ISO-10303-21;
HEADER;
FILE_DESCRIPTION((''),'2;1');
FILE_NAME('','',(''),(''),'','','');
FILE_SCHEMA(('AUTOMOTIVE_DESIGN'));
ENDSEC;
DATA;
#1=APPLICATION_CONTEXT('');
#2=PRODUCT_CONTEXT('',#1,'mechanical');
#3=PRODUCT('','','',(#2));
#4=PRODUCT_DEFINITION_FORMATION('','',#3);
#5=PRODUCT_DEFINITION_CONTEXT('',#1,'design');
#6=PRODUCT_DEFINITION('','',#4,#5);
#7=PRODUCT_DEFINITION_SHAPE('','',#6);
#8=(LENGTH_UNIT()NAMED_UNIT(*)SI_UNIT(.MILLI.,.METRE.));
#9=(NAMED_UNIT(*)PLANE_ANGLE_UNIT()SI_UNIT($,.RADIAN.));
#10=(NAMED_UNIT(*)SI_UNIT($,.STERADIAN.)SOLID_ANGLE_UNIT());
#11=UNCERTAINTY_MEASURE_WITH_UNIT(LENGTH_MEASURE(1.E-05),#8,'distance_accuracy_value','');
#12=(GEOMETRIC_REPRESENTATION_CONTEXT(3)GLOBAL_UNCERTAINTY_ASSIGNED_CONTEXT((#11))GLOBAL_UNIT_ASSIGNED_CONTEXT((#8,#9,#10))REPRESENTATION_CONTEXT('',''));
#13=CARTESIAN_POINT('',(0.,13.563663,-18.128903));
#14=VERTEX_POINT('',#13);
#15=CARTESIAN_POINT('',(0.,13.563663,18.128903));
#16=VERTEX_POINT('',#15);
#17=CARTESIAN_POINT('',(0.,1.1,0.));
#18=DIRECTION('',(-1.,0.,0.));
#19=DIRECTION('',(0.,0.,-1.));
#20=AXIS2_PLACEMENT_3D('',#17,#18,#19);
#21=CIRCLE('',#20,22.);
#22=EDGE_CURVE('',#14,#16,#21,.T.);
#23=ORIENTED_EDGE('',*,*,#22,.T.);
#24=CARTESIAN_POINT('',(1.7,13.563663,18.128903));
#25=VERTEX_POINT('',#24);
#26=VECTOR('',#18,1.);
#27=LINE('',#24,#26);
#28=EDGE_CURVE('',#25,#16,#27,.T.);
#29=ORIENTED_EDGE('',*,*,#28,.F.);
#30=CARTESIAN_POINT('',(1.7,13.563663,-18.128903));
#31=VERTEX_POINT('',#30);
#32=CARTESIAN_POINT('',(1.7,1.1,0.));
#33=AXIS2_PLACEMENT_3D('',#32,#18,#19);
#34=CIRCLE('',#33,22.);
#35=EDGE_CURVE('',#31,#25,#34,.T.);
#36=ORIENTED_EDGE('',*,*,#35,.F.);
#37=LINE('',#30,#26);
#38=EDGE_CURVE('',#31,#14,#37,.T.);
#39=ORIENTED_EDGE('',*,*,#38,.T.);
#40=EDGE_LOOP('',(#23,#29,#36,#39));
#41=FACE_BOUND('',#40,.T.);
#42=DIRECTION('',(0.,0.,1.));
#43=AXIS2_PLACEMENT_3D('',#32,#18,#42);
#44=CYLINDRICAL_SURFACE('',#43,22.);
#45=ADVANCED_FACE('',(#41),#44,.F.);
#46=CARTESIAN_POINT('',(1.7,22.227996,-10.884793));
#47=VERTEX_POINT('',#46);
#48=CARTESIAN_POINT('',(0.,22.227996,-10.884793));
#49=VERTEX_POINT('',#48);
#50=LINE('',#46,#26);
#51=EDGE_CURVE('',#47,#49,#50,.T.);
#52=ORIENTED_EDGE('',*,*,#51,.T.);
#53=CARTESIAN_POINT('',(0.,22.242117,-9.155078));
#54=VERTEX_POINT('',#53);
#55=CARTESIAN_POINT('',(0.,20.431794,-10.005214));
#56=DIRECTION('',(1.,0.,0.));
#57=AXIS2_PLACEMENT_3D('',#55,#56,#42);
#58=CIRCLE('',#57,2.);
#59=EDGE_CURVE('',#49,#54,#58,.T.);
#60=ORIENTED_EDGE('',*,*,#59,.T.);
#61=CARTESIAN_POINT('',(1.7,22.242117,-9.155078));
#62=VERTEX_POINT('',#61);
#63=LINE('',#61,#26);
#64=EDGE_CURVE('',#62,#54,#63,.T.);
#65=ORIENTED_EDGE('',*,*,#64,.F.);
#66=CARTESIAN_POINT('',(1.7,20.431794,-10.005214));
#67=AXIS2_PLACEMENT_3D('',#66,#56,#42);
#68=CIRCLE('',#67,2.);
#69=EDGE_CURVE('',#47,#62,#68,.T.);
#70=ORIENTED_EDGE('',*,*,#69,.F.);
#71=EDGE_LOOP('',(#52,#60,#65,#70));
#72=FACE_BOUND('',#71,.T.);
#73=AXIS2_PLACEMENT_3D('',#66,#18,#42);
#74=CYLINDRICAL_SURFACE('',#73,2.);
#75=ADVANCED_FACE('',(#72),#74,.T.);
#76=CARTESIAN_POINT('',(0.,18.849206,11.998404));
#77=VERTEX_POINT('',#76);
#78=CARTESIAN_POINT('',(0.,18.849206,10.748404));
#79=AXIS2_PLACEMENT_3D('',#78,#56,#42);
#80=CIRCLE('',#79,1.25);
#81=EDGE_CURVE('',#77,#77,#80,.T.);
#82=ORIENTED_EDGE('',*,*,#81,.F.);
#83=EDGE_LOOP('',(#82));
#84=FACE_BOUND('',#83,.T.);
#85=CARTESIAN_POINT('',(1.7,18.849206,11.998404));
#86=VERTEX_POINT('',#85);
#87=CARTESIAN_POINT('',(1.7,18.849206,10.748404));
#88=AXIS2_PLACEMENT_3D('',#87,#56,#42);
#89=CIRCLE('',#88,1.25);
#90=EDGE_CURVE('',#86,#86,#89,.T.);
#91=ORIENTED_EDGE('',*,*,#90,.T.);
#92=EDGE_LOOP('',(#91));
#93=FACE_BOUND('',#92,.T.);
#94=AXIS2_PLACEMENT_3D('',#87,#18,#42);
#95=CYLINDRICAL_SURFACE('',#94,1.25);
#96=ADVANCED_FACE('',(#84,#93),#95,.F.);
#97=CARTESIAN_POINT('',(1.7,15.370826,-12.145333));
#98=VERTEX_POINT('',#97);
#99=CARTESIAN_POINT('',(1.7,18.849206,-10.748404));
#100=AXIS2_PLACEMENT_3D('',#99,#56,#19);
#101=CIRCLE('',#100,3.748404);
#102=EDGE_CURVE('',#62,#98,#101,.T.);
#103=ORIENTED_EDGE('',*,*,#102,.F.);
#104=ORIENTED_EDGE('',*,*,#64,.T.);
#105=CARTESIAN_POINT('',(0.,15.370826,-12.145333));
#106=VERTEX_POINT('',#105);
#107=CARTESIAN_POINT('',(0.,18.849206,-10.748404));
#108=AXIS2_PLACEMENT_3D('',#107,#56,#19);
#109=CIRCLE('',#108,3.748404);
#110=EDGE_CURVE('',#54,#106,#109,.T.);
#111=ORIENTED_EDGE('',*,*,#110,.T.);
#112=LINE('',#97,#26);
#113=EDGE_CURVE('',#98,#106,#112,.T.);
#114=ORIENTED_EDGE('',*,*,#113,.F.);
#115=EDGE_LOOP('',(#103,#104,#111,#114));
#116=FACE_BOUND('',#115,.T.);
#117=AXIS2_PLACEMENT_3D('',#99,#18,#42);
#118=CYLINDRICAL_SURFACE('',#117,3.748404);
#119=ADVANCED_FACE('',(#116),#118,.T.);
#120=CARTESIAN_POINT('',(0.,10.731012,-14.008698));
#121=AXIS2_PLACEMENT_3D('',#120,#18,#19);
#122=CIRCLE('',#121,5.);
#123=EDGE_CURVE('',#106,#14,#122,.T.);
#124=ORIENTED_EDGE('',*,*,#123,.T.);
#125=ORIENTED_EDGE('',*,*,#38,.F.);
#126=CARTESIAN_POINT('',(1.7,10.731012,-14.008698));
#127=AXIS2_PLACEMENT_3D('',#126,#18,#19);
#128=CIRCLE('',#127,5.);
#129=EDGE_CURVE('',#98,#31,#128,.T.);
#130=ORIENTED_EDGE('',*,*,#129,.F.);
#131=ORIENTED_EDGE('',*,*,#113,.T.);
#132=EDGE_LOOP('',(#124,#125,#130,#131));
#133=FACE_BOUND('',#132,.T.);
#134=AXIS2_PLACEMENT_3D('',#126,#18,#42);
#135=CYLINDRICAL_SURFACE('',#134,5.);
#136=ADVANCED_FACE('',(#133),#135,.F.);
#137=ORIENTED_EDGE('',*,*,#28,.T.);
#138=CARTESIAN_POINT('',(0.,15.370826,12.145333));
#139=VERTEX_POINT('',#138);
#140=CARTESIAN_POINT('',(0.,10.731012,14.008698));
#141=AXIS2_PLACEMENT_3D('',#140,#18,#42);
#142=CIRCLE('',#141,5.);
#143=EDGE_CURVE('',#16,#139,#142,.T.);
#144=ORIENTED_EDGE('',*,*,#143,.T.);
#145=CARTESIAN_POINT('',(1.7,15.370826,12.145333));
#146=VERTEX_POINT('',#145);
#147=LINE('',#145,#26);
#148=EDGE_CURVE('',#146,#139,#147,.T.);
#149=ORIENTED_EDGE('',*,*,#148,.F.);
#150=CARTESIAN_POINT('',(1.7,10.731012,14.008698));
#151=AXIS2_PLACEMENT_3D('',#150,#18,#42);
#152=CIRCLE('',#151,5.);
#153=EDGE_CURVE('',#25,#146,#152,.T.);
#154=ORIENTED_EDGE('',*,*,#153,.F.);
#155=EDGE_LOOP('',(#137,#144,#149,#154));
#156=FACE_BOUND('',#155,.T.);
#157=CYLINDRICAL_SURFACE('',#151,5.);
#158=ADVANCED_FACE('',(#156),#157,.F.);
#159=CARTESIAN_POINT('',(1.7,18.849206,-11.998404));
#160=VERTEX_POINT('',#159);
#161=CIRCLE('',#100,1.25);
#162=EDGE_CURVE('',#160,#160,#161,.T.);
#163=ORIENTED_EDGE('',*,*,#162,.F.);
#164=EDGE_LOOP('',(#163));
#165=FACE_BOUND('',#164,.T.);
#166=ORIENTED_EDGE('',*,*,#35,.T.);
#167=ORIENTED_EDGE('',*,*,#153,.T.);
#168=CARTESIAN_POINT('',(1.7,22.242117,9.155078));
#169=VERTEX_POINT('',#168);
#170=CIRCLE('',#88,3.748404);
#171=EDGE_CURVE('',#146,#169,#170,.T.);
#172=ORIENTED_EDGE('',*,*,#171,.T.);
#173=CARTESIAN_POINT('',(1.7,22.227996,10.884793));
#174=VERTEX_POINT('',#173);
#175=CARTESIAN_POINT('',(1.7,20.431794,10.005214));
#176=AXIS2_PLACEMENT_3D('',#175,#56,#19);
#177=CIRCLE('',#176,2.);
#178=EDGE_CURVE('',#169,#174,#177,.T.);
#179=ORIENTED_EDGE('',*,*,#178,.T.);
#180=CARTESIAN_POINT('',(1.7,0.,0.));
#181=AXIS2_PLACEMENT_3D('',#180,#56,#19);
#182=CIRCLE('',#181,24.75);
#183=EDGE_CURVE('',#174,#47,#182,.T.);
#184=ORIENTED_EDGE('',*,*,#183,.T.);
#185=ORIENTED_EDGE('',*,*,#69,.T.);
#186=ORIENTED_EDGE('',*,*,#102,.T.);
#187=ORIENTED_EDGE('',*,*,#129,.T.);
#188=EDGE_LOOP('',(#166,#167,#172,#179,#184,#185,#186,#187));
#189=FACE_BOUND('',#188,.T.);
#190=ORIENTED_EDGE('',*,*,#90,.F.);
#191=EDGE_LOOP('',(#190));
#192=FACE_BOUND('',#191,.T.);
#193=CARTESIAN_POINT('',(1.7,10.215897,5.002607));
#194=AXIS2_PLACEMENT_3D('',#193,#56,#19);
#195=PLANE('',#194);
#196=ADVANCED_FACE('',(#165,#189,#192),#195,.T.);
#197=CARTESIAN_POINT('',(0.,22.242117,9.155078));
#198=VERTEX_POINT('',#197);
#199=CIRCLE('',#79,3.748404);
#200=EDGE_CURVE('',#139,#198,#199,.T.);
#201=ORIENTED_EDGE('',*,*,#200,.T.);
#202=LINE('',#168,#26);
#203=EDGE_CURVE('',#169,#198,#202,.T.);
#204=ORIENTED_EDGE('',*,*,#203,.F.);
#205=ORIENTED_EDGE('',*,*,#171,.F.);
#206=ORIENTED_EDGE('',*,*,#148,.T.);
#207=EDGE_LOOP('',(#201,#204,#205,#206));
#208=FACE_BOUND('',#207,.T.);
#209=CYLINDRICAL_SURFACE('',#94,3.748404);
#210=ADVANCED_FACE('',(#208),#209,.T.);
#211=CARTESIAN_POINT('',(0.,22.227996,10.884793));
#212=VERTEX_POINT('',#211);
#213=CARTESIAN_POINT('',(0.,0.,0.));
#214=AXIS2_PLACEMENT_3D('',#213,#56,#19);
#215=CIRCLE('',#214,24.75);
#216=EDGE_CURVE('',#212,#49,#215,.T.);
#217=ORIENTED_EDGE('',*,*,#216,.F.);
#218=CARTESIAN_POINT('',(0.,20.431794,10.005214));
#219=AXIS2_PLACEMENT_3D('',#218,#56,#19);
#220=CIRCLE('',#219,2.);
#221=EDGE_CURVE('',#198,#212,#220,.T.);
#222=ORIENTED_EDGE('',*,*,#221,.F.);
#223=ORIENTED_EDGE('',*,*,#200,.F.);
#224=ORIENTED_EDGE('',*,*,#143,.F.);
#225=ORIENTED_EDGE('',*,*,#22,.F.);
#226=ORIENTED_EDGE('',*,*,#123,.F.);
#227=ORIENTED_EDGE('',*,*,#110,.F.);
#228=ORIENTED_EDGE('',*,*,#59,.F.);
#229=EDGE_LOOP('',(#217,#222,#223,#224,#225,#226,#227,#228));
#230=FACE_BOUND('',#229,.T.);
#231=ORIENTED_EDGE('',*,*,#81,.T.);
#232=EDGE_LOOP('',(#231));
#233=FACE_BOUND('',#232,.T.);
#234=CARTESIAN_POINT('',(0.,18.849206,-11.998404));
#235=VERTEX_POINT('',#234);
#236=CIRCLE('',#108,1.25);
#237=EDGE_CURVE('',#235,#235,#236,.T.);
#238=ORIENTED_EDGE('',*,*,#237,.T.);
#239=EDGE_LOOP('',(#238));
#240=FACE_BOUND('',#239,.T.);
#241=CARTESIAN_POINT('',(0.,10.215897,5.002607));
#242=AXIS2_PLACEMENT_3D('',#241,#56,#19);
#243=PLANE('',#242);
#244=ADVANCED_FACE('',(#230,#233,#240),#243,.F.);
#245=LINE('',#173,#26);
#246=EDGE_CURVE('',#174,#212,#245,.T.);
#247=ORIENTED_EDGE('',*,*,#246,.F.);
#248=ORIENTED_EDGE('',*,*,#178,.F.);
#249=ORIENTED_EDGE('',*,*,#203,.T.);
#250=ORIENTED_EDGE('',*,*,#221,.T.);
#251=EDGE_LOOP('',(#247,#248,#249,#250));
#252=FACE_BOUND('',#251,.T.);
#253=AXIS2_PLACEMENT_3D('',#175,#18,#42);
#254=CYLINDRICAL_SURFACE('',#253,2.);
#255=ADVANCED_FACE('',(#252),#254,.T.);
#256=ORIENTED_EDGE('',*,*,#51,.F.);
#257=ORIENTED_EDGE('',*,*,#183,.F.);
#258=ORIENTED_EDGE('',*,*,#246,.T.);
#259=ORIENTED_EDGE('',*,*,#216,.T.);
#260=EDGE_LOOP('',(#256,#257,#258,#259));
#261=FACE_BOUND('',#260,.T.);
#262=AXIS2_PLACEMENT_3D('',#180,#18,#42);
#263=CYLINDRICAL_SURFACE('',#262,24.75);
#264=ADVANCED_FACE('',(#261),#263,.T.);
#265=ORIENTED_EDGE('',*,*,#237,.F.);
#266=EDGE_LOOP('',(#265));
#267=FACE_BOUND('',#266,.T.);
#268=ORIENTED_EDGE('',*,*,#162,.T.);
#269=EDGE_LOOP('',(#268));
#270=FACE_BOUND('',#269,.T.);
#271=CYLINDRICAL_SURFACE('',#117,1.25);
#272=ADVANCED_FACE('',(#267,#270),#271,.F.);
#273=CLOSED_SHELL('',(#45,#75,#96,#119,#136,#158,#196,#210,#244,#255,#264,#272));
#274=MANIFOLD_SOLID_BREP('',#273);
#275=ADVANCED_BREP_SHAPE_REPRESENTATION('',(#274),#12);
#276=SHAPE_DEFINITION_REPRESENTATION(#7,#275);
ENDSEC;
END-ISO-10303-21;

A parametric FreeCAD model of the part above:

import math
import FreeCAD as App
import Part
import Sketcher
from FreeCAD import Vector
Q = App.Units.Quantity

doc = App.newDocument("Part")
body = doc.addObject("PartDesign::Body", "Body")

# Sketch on YZ plane
sketch1 = doc.addObject("Sketcher::SketchObject", "Sketch")
body.addObject(sketch1)
sketch1.AttachmentSupport = (doc.YZ_Plane, [""])
sketch1.MapMode = "FlatFace"
sketch1.addGeometry([
    Part.ArcOfCircle(Part.Circle(Vector(0, 0, 0), Vector(0, 0, 1), 24.8), math.radians(26), math.radians(334)),  # 0
    Part.ArcOfCircle(Part.Circle(Vector(20.4, -10, 0), Vector(0, 0, 1), 2), math.radians(-26), math.radians(25)),  # 1
    Part.ArcOfCircle(Part.Circle(Vector(18.8, -10.7, 0), Vector(0, 0, 1), 3.7), math.radians(25), math.radians(202)),  # 2
    Part.ArcOfCircle(Part.Circle(Vector(10.7, -14, 0), Vector(0, 0, 1), 5), math.radians(-55), math.radians(22)),  # 3
    Part.ArcOfCircle(Part.Circle(Vector(1.1, 0, 0), Vector(0, 0, 1), 22), math.radians(55), math.radians(305)),  # 4
    Part.ArcOfCircle(Part.Circle(Vector(10.7, 14, 0), Vector(0, 0, 1), 5), math.radians(-22), math.radians(55)),  # 5
    Part.ArcOfCircle(Part.Circle(Vector(18.8, 10.7, 0), Vector(0, 0, 1), 3.7), math.radians(158), math.radians(335)),  # 6
    Part.ArcOfCircle(Part.Circle(Vector(20.4, 10, 0), Vector(0, 0, 1), 2), math.radians(-25), math.radians(26)),  # 7
    Part.Circle(Vector(18.8, 10.7, 0), Vector(0, 0, 1), 1.2),  # 8
    Part.Circle(Vector(18.8, -10.7, 0), Vector(0, 0, 1), 1.2),  # 9
], False)
sketch1.addConstraint([
    Sketcher.Constraint("Tangent", 0, 2, 1, 1),
    Sketcher.Constraint("Tangent", 1, 2, 2, 1),
    Sketcher.Constraint("Tangent", 2, 2, 3, 2),
    Sketcher.Constraint("Tangent", 3, 1, 4, 2),
    Sketcher.Constraint("Tangent", 4, 1, 5, 2),
    Sketcher.Constraint("Tangent", 5, 1, 6, 1),
    Sketcher.Constraint("Tangent", 6, 2, 7, 1),
    Sketcher.Constraint("Tangent", 7, 2, 0, 1),
    Sketcher.Constraint("Coincident", 0, 3, -1, 1),
    Sketcher.Constraint("Coincident", 8, 3, 6, 3),
    Sketcher.Constraint("Coincident", 9, 3, 2, 3),
    Sketcher.Constraint("Equal", 3, 5),
    Sketcher.Constraint("Equal", 2, 6),
    Sketcher.Constraint("Equal", 1, 7),
    Sketcher.Constraint("Equal", 8, 9),
    Sketcher.Constraint("Symmetric", 3, 3, 5, 3, -1),
    Sketcher.Constraint("Vertical", 2, 3, 6, 3),
    Sketcher.Constraint("Radius", 1, Q("2 mm")),
    Sketcher.Constraint("Radius", 3, Q("5 mm")),
    Sketcher.Constraint("Radius", 4, Q("22 mm")),
    Sketcher.Constraint("Diameter", 8, Q("2.5 mm")),
    Sketcher.Constraint("Radius", 0, Q("24.75 mm")),
    Sketcher.Constraint("DistanceX", -1, 1, 4, 3, Q("1.1 mm")),
    Sketcher.Constraint("Radius", 2, Q("3.748404 mm")),
    Sketcher.Constraint("DistanceY", 2, 3, 5, 3, Q("24.757102 mm")),
    Sketcher.Constraint("DistanceY", 3, 1, 2, 3, Q("7.380498 mm")),
])
pad1 = doc.addObject("PartDesign::Pad", "Pad")
body.addObject(pad1)
pad1.Profile = sketch1
pad1.Length = 1.7

doc.recompute()
